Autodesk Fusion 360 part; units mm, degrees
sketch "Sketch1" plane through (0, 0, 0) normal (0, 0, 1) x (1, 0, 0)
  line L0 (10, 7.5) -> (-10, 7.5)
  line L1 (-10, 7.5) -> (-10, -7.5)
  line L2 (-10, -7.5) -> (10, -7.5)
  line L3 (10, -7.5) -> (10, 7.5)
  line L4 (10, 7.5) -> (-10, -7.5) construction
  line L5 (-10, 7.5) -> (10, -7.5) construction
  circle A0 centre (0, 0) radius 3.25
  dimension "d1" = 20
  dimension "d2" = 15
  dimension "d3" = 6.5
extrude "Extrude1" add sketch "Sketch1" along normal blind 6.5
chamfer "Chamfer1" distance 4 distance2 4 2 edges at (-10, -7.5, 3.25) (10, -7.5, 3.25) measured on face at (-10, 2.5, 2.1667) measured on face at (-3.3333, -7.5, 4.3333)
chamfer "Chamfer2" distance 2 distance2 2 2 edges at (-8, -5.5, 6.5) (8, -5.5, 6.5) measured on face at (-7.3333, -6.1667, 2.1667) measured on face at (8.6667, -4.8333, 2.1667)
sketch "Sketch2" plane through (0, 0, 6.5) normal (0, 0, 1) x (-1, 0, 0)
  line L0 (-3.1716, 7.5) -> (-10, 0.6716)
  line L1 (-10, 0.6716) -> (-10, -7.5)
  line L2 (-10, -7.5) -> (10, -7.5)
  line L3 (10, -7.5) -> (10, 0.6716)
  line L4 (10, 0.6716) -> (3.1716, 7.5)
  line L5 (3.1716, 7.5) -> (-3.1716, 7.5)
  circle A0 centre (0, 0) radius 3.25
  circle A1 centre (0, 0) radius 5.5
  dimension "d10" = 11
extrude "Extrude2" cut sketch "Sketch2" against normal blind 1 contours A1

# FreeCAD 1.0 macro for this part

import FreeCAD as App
import Part
import Sketcher


def edges_at(feature, points):
    """Names of the edges that pass closest to the given points."""
    edges = feature.Shape.Edges
    near = lambda p: min(range(len(edges)), key=lambda i: edges[i].distToShape(Part.Vertex(*p))[0])
    return sorted({f"Edge{near(p) + 1}" for p in points})

doc = App.newDocument("Part")
body = doc.addObject("PartDesign::Body", "Body")

# Sketch on XY plane
sketch1 = body.newObject("Sketcher::SketchObject", "Sketch")
sketch1.AttachmentSupport = (doc.getObject("XY_Plane"), [""])
sketch1.MapMode = "FlatFace"
sketch1.addGeometry(Part.LineSegment(App.Vector(10, -7.5, 0), App.Vector(10, 7.5, 0)), False)
sketch1.addGeometry(Part.LineSegment(App.Vector(10, 7.5, 0), App.Vector(-10, 7.5, 0)), False)
sketch1.addGeometry(Part.LineSegment(App.Vector(-10, 7.5, 0), App.Vector(-10, -7.5, 0)), False)
sketch1.addGeometry(Part.LineSegment(App.Vector(-10, -7.5, 0), App.Vector(10, -7.5, 0)), False)
sketch1.addGeometry(Part.Circle(App.Vector(0, 0, 0), App.Vector(0, 0, 1), 3.2), False)
sketch1.addConstraint(Sketcher.Constraint("Coincident", 0, 2, 1, 1))
sketch1.addConstraint(Sketcher.Constraint("Coincident", 1, 2, 2, 1))
sketch1.addConstraint(Sketcher.Constraint("Coincident", 2, 2, 3, 1))
sketch1.addConstraint(Sketcher.Constraint("Coincident", 3, 2, 0, 1))
sketch1.addConstraint(Sketcher.Constraint("Vertical", 0))
sketch1.addConstraint(Sketcher.Constraint("Horizontal", 1))
sketch1.addConstraint(Sketcher.Constraint("Vertical", 2))
sketch1.addConstraint(Sketcher.Constraint("Horizontal", 3))
sketch1.addConstraint(Sketcher.Constraint("Coincident", 4, 3, -1, 1))
sketch1.addConstraint(Sketcher.Constraint("Symmetric", 0, 2, 2, 2, -1, 1))
sketch1.addConstraint(Sketcher.Constraint("Diameter", 4, 6.5))
sketch1.addConstraint(Sketcher.Constraint("DistanceX", 1, 2, 1, 1, 20.0))
sketch1.addConstraint(Sketcher.Constraint("DistanceY", 0, 1, 0, 2, 15.0))
pad1 = body.newObject("PartDesign::Pad", "Pad")
pad1.Profile = sketch1
pad1.Length = 6.5
doc.recompute()

chamfer = body.newObject("PartDesign::Chamfer", "Chamfer")
chamfer.Base = (pad1, edges_at(pad1, [(-10, -7.5, 3.25), (10, -7.5, 3.25)]))
chamfer.ChamferType = "Two distances"
chamfer.Size = 4
chamfer.Size2 = 4
doc.recompute()

chamfer2 = body.newObject("PartDesign::Chamfer", "Chamfer001")
chamfer2.Base = (chamfer, edges_at(chamfer, [(-8, -5.5, 6.5), (8, -5.5, 6.5)]))
chamfer2.ChamferType = "Two distances"
chamfer2.Size = 2
chamfer2.Size2 = 2

# Sketch on XY plane
sketch2 = body.newObject("Sketcher::SketchObject", "Sketch001")
sketch2.AttachmentSupport = (doc.getObject("XY_Plane"), [""])
sketch2.MapMode = "FlatFace"
sketch2.AttachmentOffset = App.Placement(App.Vector(0, 0, 6.5), App.Rotation())
sketch2.addGeometry(Part.Circle(App.Vector(0, 0, 0), App.Vector(0, 0, 1), 5.5), False)
sketch2.addGeometry(Part.Circle(App.Vector(0, 0, 0), App.Vector(0, 0, 1), 3.2), False)
sketch2.addConstraint(Sketcher.Constraint("Coincident", 0, 3, -1, 1))
sketch2.addConstraint(Sketcher.Constraint("Coincident", 1, 3, -1, 1))
sketch2.addConstraint(Sketcher.Constraint("Diameter", 0, 11.0))
sketch2.addConstraint(Sketcher.Constraint("Diameter", 1, 6.5))
pocket1 = body.newObject("PartDesign::Pocket", "Pocket")
pocket1.Profile = sketch2
pocket1.Length = 1

doc.recompute()
